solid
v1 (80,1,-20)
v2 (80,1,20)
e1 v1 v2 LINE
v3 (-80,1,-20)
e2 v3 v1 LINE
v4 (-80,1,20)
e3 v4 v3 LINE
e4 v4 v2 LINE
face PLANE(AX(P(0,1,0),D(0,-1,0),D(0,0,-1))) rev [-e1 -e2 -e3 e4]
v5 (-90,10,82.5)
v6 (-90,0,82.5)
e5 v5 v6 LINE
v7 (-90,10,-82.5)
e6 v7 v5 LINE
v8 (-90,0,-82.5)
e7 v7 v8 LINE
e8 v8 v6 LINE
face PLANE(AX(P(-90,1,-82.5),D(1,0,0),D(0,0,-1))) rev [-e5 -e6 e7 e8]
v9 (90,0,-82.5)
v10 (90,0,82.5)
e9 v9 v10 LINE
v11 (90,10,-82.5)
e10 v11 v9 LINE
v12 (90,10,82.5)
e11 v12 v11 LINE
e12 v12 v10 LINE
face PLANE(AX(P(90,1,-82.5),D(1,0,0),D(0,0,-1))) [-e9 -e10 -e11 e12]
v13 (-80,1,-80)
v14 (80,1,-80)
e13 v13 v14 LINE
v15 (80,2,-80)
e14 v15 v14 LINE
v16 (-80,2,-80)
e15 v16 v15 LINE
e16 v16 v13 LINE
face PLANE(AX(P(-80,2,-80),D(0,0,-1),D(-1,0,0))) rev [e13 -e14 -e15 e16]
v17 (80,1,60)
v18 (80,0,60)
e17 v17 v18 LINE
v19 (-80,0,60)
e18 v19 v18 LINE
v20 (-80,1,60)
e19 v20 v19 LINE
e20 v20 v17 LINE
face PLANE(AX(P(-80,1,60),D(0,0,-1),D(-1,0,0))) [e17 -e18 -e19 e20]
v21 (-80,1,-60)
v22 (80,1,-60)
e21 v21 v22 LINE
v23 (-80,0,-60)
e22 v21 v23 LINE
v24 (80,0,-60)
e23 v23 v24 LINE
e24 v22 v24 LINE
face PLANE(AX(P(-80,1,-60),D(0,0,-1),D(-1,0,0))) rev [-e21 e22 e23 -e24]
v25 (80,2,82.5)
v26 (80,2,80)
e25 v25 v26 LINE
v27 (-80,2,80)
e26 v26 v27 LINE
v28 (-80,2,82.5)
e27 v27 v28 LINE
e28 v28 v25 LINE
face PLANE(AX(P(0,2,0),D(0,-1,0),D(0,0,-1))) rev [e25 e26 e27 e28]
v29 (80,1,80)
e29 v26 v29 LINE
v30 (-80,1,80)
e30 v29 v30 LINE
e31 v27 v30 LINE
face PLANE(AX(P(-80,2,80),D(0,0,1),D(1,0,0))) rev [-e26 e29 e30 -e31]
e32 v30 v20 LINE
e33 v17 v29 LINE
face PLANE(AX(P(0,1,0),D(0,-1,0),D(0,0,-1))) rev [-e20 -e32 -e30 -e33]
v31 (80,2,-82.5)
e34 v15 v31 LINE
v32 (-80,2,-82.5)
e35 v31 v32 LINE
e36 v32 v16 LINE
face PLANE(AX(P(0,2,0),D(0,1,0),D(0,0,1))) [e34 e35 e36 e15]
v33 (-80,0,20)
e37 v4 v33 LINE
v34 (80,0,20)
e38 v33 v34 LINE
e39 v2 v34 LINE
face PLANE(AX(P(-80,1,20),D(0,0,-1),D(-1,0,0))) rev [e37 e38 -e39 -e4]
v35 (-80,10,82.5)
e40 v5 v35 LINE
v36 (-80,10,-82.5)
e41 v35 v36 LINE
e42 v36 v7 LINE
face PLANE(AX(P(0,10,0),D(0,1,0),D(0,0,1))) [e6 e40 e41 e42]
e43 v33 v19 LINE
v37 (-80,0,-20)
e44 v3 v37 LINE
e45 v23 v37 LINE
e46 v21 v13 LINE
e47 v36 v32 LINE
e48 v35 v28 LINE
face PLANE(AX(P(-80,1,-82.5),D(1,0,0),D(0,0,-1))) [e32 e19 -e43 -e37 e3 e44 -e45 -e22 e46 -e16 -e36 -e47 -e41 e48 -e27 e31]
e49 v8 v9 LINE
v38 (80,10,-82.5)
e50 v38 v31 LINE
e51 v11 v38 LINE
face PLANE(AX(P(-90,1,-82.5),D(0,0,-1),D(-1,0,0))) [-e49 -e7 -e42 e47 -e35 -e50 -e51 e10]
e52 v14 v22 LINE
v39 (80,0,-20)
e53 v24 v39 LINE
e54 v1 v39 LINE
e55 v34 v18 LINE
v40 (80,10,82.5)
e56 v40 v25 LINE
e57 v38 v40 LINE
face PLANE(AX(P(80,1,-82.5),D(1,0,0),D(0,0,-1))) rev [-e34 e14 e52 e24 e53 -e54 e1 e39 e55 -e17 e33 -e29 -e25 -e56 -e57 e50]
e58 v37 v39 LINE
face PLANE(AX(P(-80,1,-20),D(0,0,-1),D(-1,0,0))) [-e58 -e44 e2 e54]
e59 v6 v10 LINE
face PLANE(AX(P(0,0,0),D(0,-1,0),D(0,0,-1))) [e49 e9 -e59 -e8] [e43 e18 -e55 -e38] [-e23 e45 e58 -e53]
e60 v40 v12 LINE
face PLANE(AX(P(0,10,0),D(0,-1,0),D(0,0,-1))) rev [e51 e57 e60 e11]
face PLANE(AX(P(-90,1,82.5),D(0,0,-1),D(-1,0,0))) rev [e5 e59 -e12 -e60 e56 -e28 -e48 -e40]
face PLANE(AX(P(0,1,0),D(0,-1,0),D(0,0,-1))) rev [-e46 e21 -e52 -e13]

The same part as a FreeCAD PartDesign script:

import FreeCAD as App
import Part
import Sketcher
Q = App.Units.Quantity

doc = App.newDocument("Part")
body = doc.addObject("PartDesign::Body", "Body")

# Sketch on XZ plane
sketch1 = body.newObject("Sketcher::SketchObject", "Sketch")
sketch1.AttachmentSupport = (doc.getObject("XZ_Plane"), [""])
sketch1.MapMode = "FlatFace"
sketch1.addGeometry([
    Part.LineSegment(App.Vector(-90, -82.5, 0), App.Vector(-90, 82.5, 0)),  # 0
    Part.LineSegment(App.Vector(-90, 82.5, 0), App.Vector(90, 82.5, 0)),  # 1
    Part.LineSegment(App.Vector(90, 82.5, 0), App.Vector(90, -82.5, 0)),  # 2
    Part.LineSegment(App.Vector(90, -82.5, 0), App.Vector(-90, -82.5, 0)),  # 3
    Part.LineSegment(App.Vector(80, 60, 0), App.Vector(-80, 60, 0)),  # 4
    Part.LineSegment(App.Vector(-80, 60, 0), App.Vector(-80, 20, 0)),  # 5
    Part.LineSegment(App.Vector(-80, 20, 0), App.Vector(80, 20, 0)),  # 6
    Part.LineSegment(App.Vector(80, 20, 0), App.Vector(80, 60, 0)),  # 7
    Part.LineSegment(App.Vector(80, -20, 0), App.Vector(-80, -20, 0)),  # 8
    Part.LineSegment(App.Vector(-80, -20, 0), App.Vector(-80, -60, 0)),  # 9
    Part.LineSegment(App.Vector(-80, -60, 0), App.Vector(80, -60, 0)),  # 10
    Part.LineSegment(App.Vector(80, -60, 0), App.Vector(80, -20, 0)),  # 11
], False)
sketch1.addConstraint([
    Sketcher.Constraint("Coincident", 0, 2, 1, 1),
    Sketcher.Constraint("Coincident", 1, 2, 2, 1),
    Sketcher.Constraint("Coincident", 2, 2, 3, 1),
    Sketcher.Constraint("Coincident", 3, 2, 0, 1),
    Sketcher.Constraint("Coincident", 4, 2, 5, 1),
    Sketcher.Constraint("Coincident", 5, 2, 6, 1),
    Sketcher.Constraint("Coincident", 6, 2, 7, 1),
    Sketcher.Constraint("Coincident", 7, 2, 4, 1),
    Sketcher.Constraint("Coincident", 8, 2, 9, 1),
    Sketcher.Constraint("Coincident", 9, 2, 10, 1),
    Sketcher.Constraint("Coincident", 10, 2, 11, 1),
    Sketcher.Constraint("Coincident", 11, 2, 8, 1),
    Sketcher.Constraint("Vertical", 0),
    Sketcher.Constraint("Horizontal", 1),
    Sketcher.Constraint("Vertical", 2),
    Sketcher.Constraint("Horizontal", 3),
    Sketcher.Constraint("Horizontal", 4),
    Sketcher.Constraint("Vertical", 5),
    Sketcher.Constraint("Horizontal", 6),
    Sketcher.Constraint("Vertical", 7),
    Sketcher.Constraint("Horizontal", 8),
    Sketcher.Constraint("Vertical", 9),
    Sketcher.Constraint("Horizontal", 10),
    Sketcher.Constraint("Vertical", 11),
    Sketcher.Constraint("Symmetric", 0, 2, 2, 2, -1, 1),
    Sketcher.Constraint("Symmetric", 6, 2, 8, 2, -1, 1),
    Sketcher.Constraint("Symmetric", 4, 2, 10, 2, -1, 1),
    Sketcher.Constraint("Vertical", 5, 2, 8, 2),
    Sketcher.Constraint("DistanceX", 1, 1, 1, 2, Q("180 mm")),
    Sketcher.Constraint("DistanceX", 4, 2, 4, 1, Q("160 mm")),
    Sketcher.Constraint("DistanceY", 0, 1, 0, 2, Q("165 mm")),
    Sketcher.Constraint("DistanceY", 5, 2, 5, 1, Q("40 mm")),
    Sketcher.Constraint("DistanceY", -1, 1, 4, 2, Q("60 mm")),
])
pad1 = body.newObject("PartDesign::Pad", "Pad")
pad1.Profile = sketch1
pad1.Length = 1
pad1.Reversed = True

# Sketch on XZ plane
sketch2 = body.newObject("Sketcher::SketchObject", "Sketch001")
sketch2.AttachmentSupport = (doc.getObject("XZ_Plane"), [""])
sketch2.MapMode = "FlatFace"
sketch2.AttachmentOffset = App.Placement(App.Vector(0, 0, -1), App.Rotation())
sketch2.addGeometry([
    Part.LineSegment(App.Vector(-90, -82.5, 0), App.Vector(-90, 82.5, 0)),  # 0
    Part.LineSegment(App.Vector(-90, 82.5, 0), App.Vector(-80, 82.5, 0)),  # 1
    Part.LineSegment(App.Vector(-80, 82.5, 0), App.Vector(-80, -82.5, 0)),  # 2
    Part.LineSegment(App.Vector(-80, -82.5, 0), App.Vector(-90, -82.5, 0)),  # 3
    Part.LineSegment(App.Vector(80, -82.5, 0), App.Vector(80, 82.5, 0)),  # 4
    Part.LineSegment(App.Vector(80, 82.5, 0), App.Vector(90, 82.5, 0)),  # 5
    Part.LineSegment(App.Vector(90, 82.5, 0), App.Vector(90, -82.5, 0)),  # 6
    Part.LineSegment(App.Vector(90, -82.5, 0), App.Vector(80, -82.5, 0)),  # 7
], False)
sketch2.addConstraint([
    Sketcher.Constraint("Coincident", 0, 2, 1, 1),
    Sketcher.Constraint("Coincident", 1, 2, 2, 1),
    Sketcher.Constraint("Coincident", 2, 2, 3, 1),
    Sketcher.Constraint("Coincident", 3, 2, 0, 1),
    Sketcher.Constraint("Coincident", 4, 2, 5, 1),
    Sketcher.Constraint("Coincident", 5, 2, 6, 1),
    Sketcher.Constraint("Coincident", 6, 2, 7, 1),
    Sketcher.Constraint("Coincident", 7, 2, 4, 1),
    Sketcher.Constraint("Vertical", 0),
    Sketcher.Constraint("Horizontal", 1),
    Sketcher.Constraint("Vertical", 2),
    Sketcher.Constraint("Horizontal", 3),
    Sketcher.Constraint("Vertical", 4),
    Sketcher.Constraint("Horizontal", 5),
    Sketcher.Constraint("Vertical", 6),
    Sketcher.Constraint("Horizontal", 7),
    Sketcher.Constraint("Symmetric", 2, 2, 4, 2, -1, 1),
    Sketcher.Constraint("Symmetric", 0, 2, 6, 2, -1, 1),
    Sketcher.Constraint("Horizontal", 1, 2, 4, 2),
    Sketcher.Constraint("DistanceX", 1, 1, 1, 2, Q("10 mm")),
    Sketcher.Constraint("DistanceY", 0, 1, 0, 2, Q("165 mm")),
    Sketcher.Constraint("DistanceX", 0, 2, -1, 1, Q("90 mm")),
])
pad2 = body.newObject("PartDesign::Pad", "Pad001")
pad2.Profile = sketch2
pad2.Length = 9
pad2.Reversed = True

# Sketch on XZ plane
sketch3 = body.newObject("Sketcher::SketchObject", "Sketch002")
sketch3.AttachmentSupport = (doc.getObject("XZ_Plane"), [""])
sketch3.MapMode = "FlatFace"
sketch3.AttachmentOffset = App.Placement(App.Vector(0, 0, -1), App.Rotation())
sketch3.addGeometry([
    Part.LineSegment(App.Vector(-80, 80, 0), App.Vector(-80, 82.5, 0)),
    Part.LineSegment(App.Vector(-80, 82.5, 0), App.Vector(80, 82.5, 0)),
    Part.LineSegment(App.Vector(80, 82.5, 0), App.Vector(80, 80, 0)),
    Part.LineSegment(App.Vector(80, 80, 0), App.Vector(-80, 80, 0)),
], False)
sketch3.addConstraint([
    Sketcher.Constraint("Coincident", 0, 2, 1, 1),
    Sketcher.Constraint("Coincident", 1, 2, 2, 1),
    Sketcher.Constraint("Coincident", 2, 2, 3, 1),
    Sketcher.Constraint("Coincident", 3, 2, 0, 1),
    Sketcher.Constraint("Vertical", 0),
    Sketcher.Constraint("Horizontal", 1),
    Sketcher.Constraint("Vertical", 2),
    Sketcher.Constraint("Horizontal", 3),
    Sketcher.Constraint("DistanceX", 1, 1, 1, 2, Q("160 mm")),
    Sketcher.Constraint("DistanceY", 0, 1, 0, 2, Q("2.5 mm")),
    Sketcher.Constraint("DistanceX", 0, 2, -1, 1, Q("80 mm")),
    Sketcher.Constraint("DistanceY", -1, 1, 2, 2, Q("80 mm")),
])
pad3 = body.newObject("PartDesign::Pad", "Pad002")
pad3.Profile = sketch3
pad3.Length = 1
pad3.Reversed = True

# Sketch on XZ plane
sketch4 = body.newObject("Sketcher::SketchObject", "Sketch003")
sketch4.AttachmentSupport = (doc.getObject("XZ_Plane"), [""])
sketch4.MapMode = "FlatFace"
sketch4.AttachmentOffset = App.Placement(App.Vector(0, 0, -1), App.Rotation())
sketch4.addGeometry([
    Part.LineSegment(App.Vector(-80, -82.5, 0), App.Vector(-80, -80, 0)),
    Part.LineSegment(App.Vector(-80, -80, 0), App.Vector(80, -80, 0)),
    Part.LineSegment(App.Vector(80, -80, 0), App.Vector(80, -82.5, 0)),
    Part.LineSegment(App.Vector(80, -82.5, 0), App.Vector(-80, -82.5, 0)),
], False)
sketch4.addConstraint([
    Sketcher.Constraint("Coincident", 0, 2, 1, 1),
    Sketcher.Constraint("Coincident", 1, 2, 2, 1),
    Sketcher.Constraint("Coincident", 2, 2, 3, 1),
    Sketcher.Constraint("Coincident", 3, 2, 0, 1),
    Sketcher.Constraint("Vertical", 0),
    Sketcher.Constraint("Horizontal", 1),
    Sketcher.Constraint("Vertical", 2),
    Sketcher.Constraint("Horizontal", 3),
    Sketcher.Constraint("DistanceX", 1, 1, 1, 2, Q("160 mm")),
    Sketcher.Constraint("DistanceY", 0, 1, 0, 2, Q("2.5 mm")),
    Sketcher.Constraint("DistanceX", 0, 2, -1, 1, Q("80 mm")),
    Sketcher.Constraint("DistanceY", 0, 2, -1, 1, Q("80 mm")),
])
pad4 = body.newObject("PartDesign::Pad", "Pad003")
pad4.Profile = sketch4
pad4.Length = 1
pad4.Reversed = True

doc.recompute()
